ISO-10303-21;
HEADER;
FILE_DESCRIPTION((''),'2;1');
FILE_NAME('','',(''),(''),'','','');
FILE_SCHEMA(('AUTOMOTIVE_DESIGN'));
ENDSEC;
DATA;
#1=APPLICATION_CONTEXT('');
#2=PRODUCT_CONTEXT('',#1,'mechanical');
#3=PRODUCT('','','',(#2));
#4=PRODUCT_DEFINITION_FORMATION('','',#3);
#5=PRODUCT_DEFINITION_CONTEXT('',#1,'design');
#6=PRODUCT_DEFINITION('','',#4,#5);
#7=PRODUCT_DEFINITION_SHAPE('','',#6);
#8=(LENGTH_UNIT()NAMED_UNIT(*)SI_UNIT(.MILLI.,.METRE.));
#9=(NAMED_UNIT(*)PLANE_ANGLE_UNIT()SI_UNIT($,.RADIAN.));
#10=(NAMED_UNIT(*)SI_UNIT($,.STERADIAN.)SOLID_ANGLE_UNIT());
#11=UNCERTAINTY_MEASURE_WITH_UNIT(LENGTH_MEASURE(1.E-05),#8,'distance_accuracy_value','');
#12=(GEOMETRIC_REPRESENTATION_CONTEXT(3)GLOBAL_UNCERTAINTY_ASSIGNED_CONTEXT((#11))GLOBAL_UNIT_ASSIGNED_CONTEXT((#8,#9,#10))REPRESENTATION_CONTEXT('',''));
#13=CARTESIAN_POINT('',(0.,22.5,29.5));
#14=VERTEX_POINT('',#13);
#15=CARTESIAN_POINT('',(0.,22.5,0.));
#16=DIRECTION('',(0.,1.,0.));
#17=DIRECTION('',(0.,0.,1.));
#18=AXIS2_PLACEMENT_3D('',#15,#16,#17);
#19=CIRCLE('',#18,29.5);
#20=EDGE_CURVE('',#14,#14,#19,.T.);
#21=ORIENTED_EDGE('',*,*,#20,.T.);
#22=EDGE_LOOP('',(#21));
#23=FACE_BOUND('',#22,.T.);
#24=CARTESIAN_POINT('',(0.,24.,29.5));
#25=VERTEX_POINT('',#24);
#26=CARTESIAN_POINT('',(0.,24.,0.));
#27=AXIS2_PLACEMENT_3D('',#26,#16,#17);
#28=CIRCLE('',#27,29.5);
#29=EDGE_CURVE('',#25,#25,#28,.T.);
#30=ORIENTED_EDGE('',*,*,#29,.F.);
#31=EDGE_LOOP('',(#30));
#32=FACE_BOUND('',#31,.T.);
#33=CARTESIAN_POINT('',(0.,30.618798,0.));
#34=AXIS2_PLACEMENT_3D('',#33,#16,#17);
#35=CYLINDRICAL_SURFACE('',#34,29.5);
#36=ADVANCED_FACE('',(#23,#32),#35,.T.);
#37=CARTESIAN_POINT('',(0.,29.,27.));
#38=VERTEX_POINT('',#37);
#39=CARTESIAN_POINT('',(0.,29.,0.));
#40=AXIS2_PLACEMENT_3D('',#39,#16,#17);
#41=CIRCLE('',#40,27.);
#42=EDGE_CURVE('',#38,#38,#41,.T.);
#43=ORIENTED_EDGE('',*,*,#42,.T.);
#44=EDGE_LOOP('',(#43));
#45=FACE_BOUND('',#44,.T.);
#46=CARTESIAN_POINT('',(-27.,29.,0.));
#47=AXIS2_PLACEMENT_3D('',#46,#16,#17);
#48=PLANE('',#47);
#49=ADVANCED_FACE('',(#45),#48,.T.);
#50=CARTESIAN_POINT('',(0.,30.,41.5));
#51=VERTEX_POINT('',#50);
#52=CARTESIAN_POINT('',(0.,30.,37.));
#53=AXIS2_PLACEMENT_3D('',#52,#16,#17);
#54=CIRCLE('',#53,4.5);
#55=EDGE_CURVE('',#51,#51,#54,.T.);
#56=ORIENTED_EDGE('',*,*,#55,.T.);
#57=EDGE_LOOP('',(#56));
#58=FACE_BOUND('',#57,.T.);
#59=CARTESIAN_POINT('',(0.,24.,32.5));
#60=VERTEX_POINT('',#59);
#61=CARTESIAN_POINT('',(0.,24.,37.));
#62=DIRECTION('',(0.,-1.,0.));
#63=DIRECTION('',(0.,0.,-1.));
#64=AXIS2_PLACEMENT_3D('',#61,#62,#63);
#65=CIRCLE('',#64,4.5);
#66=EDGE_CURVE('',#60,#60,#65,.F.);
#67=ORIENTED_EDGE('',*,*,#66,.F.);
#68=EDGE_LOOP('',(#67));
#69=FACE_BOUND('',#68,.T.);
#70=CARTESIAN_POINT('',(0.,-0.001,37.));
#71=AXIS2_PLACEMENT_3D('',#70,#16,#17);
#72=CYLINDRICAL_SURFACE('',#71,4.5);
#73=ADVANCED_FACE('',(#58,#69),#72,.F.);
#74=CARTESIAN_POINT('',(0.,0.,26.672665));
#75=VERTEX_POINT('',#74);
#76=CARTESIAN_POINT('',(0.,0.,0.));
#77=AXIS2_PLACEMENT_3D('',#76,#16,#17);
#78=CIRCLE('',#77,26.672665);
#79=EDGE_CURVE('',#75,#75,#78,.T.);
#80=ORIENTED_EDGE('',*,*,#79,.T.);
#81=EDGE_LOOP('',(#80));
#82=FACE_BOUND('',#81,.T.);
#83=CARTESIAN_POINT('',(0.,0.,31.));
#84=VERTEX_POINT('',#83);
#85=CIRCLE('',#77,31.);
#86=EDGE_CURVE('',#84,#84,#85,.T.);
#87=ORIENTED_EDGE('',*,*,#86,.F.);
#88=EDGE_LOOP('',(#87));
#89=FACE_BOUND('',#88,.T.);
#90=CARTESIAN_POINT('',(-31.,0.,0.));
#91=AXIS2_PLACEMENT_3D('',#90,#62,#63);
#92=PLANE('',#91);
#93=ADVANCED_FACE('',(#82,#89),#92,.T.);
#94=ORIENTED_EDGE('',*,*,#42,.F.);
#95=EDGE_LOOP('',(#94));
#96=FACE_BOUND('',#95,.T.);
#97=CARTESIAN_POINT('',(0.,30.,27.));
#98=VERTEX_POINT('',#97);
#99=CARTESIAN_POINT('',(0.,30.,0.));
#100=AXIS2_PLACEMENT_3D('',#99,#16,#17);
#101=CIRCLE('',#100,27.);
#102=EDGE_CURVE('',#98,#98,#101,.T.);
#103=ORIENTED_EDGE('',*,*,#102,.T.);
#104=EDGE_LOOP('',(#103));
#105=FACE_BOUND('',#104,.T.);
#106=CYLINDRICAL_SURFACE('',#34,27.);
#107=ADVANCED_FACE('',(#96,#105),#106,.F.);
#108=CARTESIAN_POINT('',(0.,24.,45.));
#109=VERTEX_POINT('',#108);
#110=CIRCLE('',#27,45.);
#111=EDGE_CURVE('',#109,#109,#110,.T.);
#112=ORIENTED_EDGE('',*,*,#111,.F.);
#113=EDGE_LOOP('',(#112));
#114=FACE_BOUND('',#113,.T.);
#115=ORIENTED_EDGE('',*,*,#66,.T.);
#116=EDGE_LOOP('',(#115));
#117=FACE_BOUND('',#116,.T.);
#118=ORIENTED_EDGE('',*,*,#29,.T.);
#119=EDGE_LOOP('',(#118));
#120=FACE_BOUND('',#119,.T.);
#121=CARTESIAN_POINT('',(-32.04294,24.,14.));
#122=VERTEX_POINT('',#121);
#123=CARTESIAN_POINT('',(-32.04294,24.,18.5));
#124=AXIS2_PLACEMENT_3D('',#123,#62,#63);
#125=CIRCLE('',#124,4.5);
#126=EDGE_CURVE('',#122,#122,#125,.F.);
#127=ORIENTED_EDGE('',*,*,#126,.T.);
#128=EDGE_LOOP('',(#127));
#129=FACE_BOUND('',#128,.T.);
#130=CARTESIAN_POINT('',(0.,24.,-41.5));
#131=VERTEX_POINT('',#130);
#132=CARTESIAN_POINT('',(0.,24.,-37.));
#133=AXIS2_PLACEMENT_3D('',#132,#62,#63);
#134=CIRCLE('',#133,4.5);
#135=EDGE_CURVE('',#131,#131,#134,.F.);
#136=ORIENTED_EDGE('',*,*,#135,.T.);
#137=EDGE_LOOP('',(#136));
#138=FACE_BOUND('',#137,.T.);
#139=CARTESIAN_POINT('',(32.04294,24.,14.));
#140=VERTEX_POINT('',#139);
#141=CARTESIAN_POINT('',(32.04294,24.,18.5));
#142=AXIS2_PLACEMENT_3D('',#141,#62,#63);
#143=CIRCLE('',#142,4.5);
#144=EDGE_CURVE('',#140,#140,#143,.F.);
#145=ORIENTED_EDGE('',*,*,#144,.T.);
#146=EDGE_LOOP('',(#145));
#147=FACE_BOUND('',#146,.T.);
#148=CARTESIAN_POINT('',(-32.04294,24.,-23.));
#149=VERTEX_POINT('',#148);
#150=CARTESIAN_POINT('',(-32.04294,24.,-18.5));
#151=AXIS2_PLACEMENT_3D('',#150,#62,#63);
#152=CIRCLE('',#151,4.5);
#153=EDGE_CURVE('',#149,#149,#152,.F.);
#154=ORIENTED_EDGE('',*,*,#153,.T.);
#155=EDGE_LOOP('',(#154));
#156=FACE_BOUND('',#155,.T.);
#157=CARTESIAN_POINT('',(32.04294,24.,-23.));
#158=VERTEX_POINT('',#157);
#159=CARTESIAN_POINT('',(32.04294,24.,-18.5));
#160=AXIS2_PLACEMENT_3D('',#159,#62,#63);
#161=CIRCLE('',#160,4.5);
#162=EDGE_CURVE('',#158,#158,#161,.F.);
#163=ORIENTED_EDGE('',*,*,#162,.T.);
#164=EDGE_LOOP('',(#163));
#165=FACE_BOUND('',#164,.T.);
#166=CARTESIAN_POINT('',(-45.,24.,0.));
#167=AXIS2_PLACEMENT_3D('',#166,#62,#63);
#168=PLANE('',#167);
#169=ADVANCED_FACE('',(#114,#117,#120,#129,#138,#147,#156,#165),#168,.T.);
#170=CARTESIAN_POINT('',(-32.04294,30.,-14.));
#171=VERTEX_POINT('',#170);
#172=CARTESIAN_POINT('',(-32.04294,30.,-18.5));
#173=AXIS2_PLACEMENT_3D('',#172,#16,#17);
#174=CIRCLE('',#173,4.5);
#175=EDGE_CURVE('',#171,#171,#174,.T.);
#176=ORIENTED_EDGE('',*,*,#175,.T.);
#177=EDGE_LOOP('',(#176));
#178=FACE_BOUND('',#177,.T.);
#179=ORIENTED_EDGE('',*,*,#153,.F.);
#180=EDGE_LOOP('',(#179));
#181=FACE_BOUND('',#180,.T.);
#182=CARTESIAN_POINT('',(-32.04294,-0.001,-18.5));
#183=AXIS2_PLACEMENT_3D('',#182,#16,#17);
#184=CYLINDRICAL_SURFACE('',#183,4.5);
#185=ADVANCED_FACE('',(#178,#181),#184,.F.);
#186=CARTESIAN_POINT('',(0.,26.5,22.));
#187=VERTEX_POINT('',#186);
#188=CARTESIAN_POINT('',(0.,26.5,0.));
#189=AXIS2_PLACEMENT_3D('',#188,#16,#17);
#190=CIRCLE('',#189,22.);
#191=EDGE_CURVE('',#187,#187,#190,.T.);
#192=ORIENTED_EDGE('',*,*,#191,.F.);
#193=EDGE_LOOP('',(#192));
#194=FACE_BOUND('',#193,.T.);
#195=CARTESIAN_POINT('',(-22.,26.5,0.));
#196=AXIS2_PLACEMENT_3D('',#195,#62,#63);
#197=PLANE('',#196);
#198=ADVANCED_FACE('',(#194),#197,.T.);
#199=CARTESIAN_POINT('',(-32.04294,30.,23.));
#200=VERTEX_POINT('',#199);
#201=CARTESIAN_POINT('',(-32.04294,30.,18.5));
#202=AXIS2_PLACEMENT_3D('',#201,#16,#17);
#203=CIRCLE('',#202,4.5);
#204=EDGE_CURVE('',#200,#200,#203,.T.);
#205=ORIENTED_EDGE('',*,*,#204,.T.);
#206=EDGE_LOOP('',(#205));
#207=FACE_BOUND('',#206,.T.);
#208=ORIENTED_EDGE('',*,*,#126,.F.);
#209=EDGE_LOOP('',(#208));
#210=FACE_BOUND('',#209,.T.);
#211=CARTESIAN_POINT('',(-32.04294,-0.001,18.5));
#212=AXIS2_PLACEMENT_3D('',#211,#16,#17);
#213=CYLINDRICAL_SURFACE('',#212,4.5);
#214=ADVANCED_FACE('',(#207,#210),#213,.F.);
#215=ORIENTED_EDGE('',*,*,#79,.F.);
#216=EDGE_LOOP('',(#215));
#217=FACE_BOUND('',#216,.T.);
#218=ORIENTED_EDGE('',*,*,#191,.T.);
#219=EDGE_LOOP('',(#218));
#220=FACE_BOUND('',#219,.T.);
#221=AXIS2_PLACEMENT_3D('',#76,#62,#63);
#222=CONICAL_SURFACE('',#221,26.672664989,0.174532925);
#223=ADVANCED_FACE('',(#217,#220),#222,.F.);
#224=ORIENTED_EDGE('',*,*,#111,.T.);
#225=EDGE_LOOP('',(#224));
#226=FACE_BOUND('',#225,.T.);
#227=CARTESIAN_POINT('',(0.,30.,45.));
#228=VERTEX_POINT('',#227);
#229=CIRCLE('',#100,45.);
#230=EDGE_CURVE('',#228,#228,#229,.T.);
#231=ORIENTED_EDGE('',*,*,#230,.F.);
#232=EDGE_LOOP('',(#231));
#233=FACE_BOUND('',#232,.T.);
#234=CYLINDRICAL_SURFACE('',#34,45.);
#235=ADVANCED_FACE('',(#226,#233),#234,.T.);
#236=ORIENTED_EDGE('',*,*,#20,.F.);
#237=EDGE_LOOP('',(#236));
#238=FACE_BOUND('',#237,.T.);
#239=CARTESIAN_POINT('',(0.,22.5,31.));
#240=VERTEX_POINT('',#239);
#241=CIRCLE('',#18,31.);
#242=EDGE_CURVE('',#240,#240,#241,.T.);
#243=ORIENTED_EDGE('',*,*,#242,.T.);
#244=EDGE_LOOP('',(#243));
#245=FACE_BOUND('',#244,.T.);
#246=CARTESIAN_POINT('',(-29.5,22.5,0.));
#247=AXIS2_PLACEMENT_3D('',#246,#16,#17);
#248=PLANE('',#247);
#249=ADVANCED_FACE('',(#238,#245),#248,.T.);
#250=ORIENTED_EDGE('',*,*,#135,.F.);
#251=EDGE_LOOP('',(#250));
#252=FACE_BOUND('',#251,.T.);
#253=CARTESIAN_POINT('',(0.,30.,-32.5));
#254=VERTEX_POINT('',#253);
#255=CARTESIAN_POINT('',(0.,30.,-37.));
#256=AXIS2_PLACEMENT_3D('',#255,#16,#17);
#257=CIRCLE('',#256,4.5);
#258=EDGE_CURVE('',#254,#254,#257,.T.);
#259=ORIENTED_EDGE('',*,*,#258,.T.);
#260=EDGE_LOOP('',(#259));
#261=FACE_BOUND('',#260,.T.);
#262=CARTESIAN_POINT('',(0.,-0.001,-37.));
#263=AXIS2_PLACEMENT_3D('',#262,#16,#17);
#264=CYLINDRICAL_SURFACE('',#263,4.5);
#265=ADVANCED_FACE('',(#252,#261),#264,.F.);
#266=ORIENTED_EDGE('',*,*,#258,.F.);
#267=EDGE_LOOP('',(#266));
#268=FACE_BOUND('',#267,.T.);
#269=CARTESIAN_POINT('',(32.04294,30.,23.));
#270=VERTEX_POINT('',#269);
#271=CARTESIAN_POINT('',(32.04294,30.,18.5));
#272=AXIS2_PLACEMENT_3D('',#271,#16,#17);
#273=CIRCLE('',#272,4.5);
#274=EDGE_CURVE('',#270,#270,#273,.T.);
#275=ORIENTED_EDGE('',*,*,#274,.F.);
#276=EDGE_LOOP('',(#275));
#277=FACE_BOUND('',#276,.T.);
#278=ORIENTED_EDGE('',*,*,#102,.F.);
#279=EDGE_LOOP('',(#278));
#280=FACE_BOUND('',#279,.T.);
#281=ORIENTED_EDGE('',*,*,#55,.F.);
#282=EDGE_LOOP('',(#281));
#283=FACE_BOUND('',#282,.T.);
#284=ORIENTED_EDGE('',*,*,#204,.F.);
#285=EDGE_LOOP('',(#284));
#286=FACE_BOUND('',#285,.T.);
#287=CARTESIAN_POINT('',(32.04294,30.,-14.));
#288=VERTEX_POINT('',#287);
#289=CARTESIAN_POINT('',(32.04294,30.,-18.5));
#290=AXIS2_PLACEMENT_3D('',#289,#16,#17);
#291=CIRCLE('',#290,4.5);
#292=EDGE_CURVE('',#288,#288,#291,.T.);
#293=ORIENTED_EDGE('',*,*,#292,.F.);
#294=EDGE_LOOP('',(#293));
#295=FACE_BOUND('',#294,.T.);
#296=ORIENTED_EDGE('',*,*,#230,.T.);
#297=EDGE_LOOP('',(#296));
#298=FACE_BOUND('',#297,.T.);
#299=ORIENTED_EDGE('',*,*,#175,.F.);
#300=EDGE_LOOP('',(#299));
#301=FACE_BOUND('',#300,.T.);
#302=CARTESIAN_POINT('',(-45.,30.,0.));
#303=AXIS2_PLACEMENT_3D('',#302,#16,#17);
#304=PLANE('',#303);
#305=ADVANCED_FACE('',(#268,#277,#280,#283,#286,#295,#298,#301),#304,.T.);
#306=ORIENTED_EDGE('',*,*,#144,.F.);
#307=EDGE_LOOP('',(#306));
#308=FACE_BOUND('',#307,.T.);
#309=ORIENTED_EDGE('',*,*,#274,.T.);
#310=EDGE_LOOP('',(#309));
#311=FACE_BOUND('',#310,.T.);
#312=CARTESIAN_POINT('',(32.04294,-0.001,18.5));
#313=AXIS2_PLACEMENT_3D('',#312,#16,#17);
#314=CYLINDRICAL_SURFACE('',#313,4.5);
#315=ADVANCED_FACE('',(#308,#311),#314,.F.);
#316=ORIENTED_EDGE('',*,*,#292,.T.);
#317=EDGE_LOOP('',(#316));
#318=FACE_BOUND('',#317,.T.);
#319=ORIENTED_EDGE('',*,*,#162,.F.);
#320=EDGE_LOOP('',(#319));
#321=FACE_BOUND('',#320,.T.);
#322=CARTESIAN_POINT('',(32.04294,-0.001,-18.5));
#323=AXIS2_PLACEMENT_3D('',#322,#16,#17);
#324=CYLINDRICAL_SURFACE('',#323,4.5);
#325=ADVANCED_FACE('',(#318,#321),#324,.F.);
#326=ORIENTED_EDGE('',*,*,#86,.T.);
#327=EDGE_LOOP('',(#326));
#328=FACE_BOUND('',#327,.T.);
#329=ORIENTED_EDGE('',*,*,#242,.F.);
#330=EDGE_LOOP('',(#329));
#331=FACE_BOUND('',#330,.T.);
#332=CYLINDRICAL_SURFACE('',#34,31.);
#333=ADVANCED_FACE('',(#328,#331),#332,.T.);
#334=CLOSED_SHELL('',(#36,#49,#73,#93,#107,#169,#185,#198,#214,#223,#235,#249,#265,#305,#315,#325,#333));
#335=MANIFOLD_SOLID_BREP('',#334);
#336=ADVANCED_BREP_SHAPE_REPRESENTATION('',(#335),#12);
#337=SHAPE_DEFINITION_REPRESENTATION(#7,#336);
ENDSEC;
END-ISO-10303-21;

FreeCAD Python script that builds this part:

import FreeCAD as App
import Part
import Sketcher
from FreeCAD import Vector
Q = App.Units.Quantity

doc = App.newDocument("Part")
body = doc.addObject("PartDesign::Body", "Body")

sketch1 = body.newObject("Sketcher::SketchObject", "Sketch")
sketch1.AttachmentSupport = (doc.getObject("XY_Plane"), [""])
sketch1.MapMode = "FlatFace"
sketch1.addGeometry([
    Part.LineSegment(Vector(-45, 30, 0), Vector(-45, 24, 0)),
    Part.LineSegment(Vector(-45, 24, 0), Vector(-29.5, 24, 0)),
    Part.LineSegment(Vector(-29.5, 24, 0), Vector(-29.5, 22.5, 0)),
    Part.LineSegment(Vector(-29.5, 22.5, 0), Vector(-31, 22.5, 0)),
    Part.LineSegment(Vector(-31, 22.5, 0), Vector(-31, 0, 0)),
    Part.LineSegment(Vector(-31, 0, 0), Vector(-26.672665, 0, 0)),
    Part.LineSegment(Vector(-26.672665, 0, 0), Vector(-22, 26.5, 0)),
    Part.LineSegment(Vector(-22, 26.5, 0), Vector(0, 26.5, 0)),
    Part.LineSegment(Vector(0, 26.5, 0), Vector(0, 29, 0)),
    Part.LineSegment(Vector(0, 29, 0), Vector(-27, 29, 0)),
    Part.LineSegment(Vector(-27, 29, 0), Vector(-27, 30, 0)),
    Part.LineSegment(Vector(-27, 30, 0), Vector(-45, 30, 0)),
], False)
sketch1.addConstraint([
    Sketcher.Constraint("Coincident", 0, 2, 1, 1),
    Sketcher.Constraint("Coincident", 1, 2, 2, 1),
    Sketcher.Constraint("Coincident", 2, 2, 3, 1),
    Sketcher.Constraint("Coincident", 3, 2, 4, 1),
    Sketcher.Constraint("Coincident", 4, 2, 5, 1),
    Sketcher.Constraint("Coincident", 5, 2, 6, 1),
    Sketcher.Constraint("Coincident", 6, 2, 7, 1),
    Sketcher.Constraint("Coincident", 7, 2, 8, 1),
    Sketcher.Constraint("Coincident", 8, 2, 9, 1),
    Sketcher.Constraint("Coincident", 9, 2, 10, 1),
    Sketcher.Constraint("Coincident", 10, 2, 11, 1),
    Sketcher.Constraint("Coincident", 11, 2, 0, 1),
    Sketcher.Constraint("Vertical", 0),
    Sketcher.Constraint("Horizontal", 1),
    Sketcher.Constraint("Vertical", 2),
    Sketcher.Constraint("Horizontal", 3),
    Sketcher.Constraint("Vertical", 4),
    Sketcher.Constraint("Horizontal", 5),
    Sketcher.Constraint("Horizontal", 7),
    Sketcher.Constraint("Vertical", 8),
    Sketcher.Constraint("Horizontal", 9),
    Sketcher.Constraint("Vertical", 10),
    Sketcher.Constraint("Horizontal", 11),
    Sketcher.Constraint("PointOnObject", 4, 2, -1),
    Sketcher.Constraint("PointOnObject", 7, 2, -2),
    Sketcher.Constraint("Equal", 3, 2),
    Sketcher.Constraint("DistanceX", 7, 1, 7, 2, Q("22 mm")),
    Sketcher.Constraint("DistanceX", 9, 2, 9, 1, Q("27 mm")),
    Sketcher.Constraint("DistanceX", 11, 2, 11, 1, Q("18 mm")),
    Sketcher.Constraint("DistanceY", 0, 2, 0, 1, Q("6 mm")),
    Sketcher.Constraint("DistanceY", 10, 1, 10, 2, Q("1 mm")),
    Sketcher.Constraint("Angle", 6, Q("80 deg")),
    Sketcher.Constraint("DistanceX", 1, 1, 1, 2, Q("15.5 mm")),
    Sketcher.Constraint("DistanceX", 3, 2, 3, 1, Q("1.5 mm")),
    Sketcher.Constraint("DistanceY", 4, 2, 4, 1, Q("22.5 mm")),
    Sketcher.Constraint("DistanceY", 8, 1, 8, 2, Q("2.5 mm")),
])
revolution = body.newObject("PartDesign::Revolution", "Revolution")
revolution.Profile = sketch1
revolution.ReferenceAxis = (sketch1, ["V_Axis"])
revolution.Angle = 360

sketch2 = body.newObject("Sketcher::SketchObject", "Sketch001")
sketch2.AttachmentSupport = (doc.getObject("XZ_Plane"), [""])
sketch2.MapMode = "FlatFace"
sketch2.AttachmentOffset = App.Placement(Vector(0, 0, -30), App.Rotation())
sketch2.addGeometry(Part.Circle(Vector(0, -37, 0), Vector(0, 0, 1), 4.5), False)
sketch2.addConstraint([
    Sketcher.Constraint("PointOnObject", 0, 3, -2),
    Sketcher.Constraint("Diameter", 0, Q("9 mm")),
    Sketcher.Constraint("DistanceY", 0, 3, -1, 1, Q("37 mm")),
])
pocket1 = body.newObject("PartDesign::Pocket", "Pocket")
pocket1.Profile = sketch2
pocket1.Type = "UpToFirst"
pocket1.Reversed = True

sketch3 = body.newObject("Sketcher::SketchObject", "Sketch002")
sketch3.AttachmentSupport = (doc.getObject("XZ_Plane"), [""])
sketch3.MapMode = "FlatFace"
sketch3.AttachmentOffset = App.Placement(Vector(0, 0, -30), App.Rotation())
sketch3.addGeometry(Part.Circle(Vector(32.04294, -18.5, 0), Vector(0, 0, 1), 4.5), False)
sketch3.addConstraint([
    Sketcher.Constraint("Diameter", 0, Q("9 mm")),
    Sketcher.Constraint("DistanceY", 0, 3, -1, 1, Q("18.5 mm")),
    Sketcher.Constraint("DistanceX", -1, 1, 0, 3, Q("32.04294 mm")),
])
pocket2 = body.newObject("PartDesign::Pocket", "Pocket001")
pocket2.Profile = sketch3
pocket2.Type = "UpToFirst"
pocket2.Reversed = True

sketch4 = body.newObject("Sketcher::SketchObject", "Sketch003")
sketch4.AttachmentSupport = (doc.getObject("XZ_Plane"), [""])
sketch4.MapMode = "FlatFace"
sketch4.AttachmentOffset = App.Placement(Vector(0, 0, -30), App.Rotation())
sketch4.addGeometry(Part.Circle(Vector(32.04294, 18.5, 0), Vector(0, 0, 1), 4.5), False)
sketch4.addConstraint([
    Sketcher.Constraint("Diameter", 0, Q("9 mm")),
    Sketcher.Constraint("DistanceY", -1, 1, 0, 3, Q("18.5 mm")),
    Sketcher.Constraint("DistanceX", -1, 1, 0, 3, Q("32.04294 mm")),
])
pocket3 = body.newObject("PartDesign::Pocket", "Pocket002")
pocket3.Profile = sketch4
pocket3.Type = "UpToFirst"
pocket3.Reversed = True

sketch5 = body.newObject("Sketcher::SketchObject", "Sketch004")
sketch5.AttachmentSupport = (doc.getObject("XZ_Plane"), [""])
sketch5.MapMode = "FlatFace"
sketch5.AttachmentOffset = App.Placement(Vector(0, 0, -30), App.Rotation())
sketch5.addGeometry(Part.Circle(Vector(0, 37, 0), Vector(0, 0, 1), 4.5), False)
sketch5.addConstraint([
    Sketcher.Constraint("PointOnObject", 0, 3, -2),
    Sketcher.Constraint("Diameter", 0, Q("9 mm")),
    Sketcher.Constraint("DistanceY", -1, 1, 0, 3, Q("37 mm")),
])
pocket4 = body.newObject("PartDesign::Pocket", "Pocket003")
pocket4.Profile = sketch5
pocket4.Type = "UpToFirst"
pocket4.Reversed = True

sketch6 = body.newObject("Sketcher::SketchObject", "Sketch005")
sketch6.AttachmentSupport = (doc.getObject("XZ_Plane"), [""])
sketch6.MapMode = "FlatFace"
sketch6.AttachmentOffset = App.Placement(Vector(0, 0, -30), App.Rotation())
sketch6.addGeometry(Part.Circle(Vector(-32.04294, 18.5, 0), Vector(0, 0, 1), 4.5), False)
sketch6.addConstraint([
    Sketcher.Constraint("Diameter", 0, Q("9 mm")),
    Sketcher.Constraint("DistanceY", -1, 1, 0, 3, Q("18.5 mm")),
    Sketcher.Constraint("DistanceX", 0, 3, -1, 1, Q("32.04294 mm")),
])
pocket5 = body.newObject("PartDesign::Pocket", "Pocket004")
pocket5.Profile = sketch6
pocket5.Type = "UpToFirst"
pocket5.Reversed = True

sketch7 = body.newObject("Sketcher::SketchObject", "Sketch006")
sketch7.AttachmentSupport = (doc.getObject("XZ_Plane"), [""])
sketch7.MapMode = "FlatFace"
sketch7.AttachmentOffset = App.Placement(Vector(0, 0, -30), App.Rotation())
sketch7.addGeometry(Part.Circle(Vector(-32.04294, -18.5, 0), Vector(0, 0, 1), 4.5), False)
sketch7.addConstraint([
    Sketcher.Constraint("Diameter", 0, Q("9 mm")),
    Sketcher.Constraint("DistanceY", 0, 3, -1, 1, Q("18.5 mm")),
    Sketcher.Constraint("DistanceX", 0, 3, -1, 1, Q("32.04294 mm")),
])
pocket6 = body.newObject("PartDesign::Pocket", "Pocket005")
pocket6.Profile = sketch7
pocket6.Type = "UpToFirst"
pocket6.Reversed = True

doc.recompute()
